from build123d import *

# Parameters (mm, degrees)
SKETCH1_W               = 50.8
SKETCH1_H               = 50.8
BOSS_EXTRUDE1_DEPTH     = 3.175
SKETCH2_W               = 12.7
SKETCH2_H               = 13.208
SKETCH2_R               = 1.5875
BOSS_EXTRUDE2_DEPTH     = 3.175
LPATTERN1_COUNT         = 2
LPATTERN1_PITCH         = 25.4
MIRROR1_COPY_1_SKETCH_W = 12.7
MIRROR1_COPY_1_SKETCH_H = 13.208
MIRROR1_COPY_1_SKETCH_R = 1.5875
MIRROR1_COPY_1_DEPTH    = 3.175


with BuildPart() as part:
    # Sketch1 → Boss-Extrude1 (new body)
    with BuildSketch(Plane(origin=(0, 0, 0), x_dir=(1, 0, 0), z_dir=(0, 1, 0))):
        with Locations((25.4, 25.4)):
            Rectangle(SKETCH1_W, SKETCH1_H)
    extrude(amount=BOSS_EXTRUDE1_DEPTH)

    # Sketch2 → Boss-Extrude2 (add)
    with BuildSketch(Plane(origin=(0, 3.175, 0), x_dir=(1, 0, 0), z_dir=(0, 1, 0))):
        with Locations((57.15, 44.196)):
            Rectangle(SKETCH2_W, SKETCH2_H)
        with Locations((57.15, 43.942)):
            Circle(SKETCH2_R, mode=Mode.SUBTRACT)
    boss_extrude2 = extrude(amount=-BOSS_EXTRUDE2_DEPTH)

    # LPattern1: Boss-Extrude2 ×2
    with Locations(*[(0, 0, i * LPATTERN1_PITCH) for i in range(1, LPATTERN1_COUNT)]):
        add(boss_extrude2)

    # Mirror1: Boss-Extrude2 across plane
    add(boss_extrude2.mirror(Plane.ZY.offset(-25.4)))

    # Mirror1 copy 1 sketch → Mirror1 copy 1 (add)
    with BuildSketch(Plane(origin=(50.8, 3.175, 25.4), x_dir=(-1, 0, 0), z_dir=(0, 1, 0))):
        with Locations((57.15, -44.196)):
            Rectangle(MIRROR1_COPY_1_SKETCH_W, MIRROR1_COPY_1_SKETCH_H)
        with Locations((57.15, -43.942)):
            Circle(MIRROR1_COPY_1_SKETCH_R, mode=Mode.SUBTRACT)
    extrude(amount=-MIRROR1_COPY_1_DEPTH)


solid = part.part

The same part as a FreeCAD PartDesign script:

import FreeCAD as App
import Part
import Sketcher
Q = App.Units.Quantity

doc = App.newDocument("Part")
body = doc.addObject("PartDesign::Body", "Body")

# Sketch on XZ plane
sketch1 = body.newObject("Sketcher::SketchObject", "Sketch")
sketch1.AttachmentSupport = (doc.getObject("XZ_Plane"), [""])
sketch1.MapMode = "FlatFace"
sketch1.addGeometry(Part.LineSegment(App.Vector(0, -51, 0), App.Vector(0, 0, 0)), False)
sketch1.addGeometry(Part.LineSegment(App.Vector(0, 0, 0), App.Vector(51, 0, 0)), False)
sketch1.addGeometry(Part.LineSegment(App.Vector(51, 0, 0), App.Vector(51, -51, 0)), False)
sketch1.addGeometry(Part.LineSegment(App.Vector(51, -51, 0), App.Vector(0, -51, 0)), False)
sketch1.addConstraint(Sketcher.Constraint("Coincident", 0, 2, 1, 1))
sketch1.addConstraint(Sketcher.Constraint("Coincident", 1, 2, 2, 1))
sketch1.addConstraint(Sketcher.Constraint("Coincident", 2, 2, 3, 1))
sketch1.addConstraint(Sketcher.Constraint("Coincident", 3, 2, 0, 1))
sketch1.addConstraint(Sketcher.Constraint("Vertical", 0))
sketch1.addConstraint(Sketcher.Constraint("Horizontal", 1))
sketch1.addConstraint(Sketcher.Constraint("Vertical", 2))
sketch1.addConstraint(Sketcher.Constraint("Horizontal", 3))
sketch1.addConstraint(Sketcher.Constraint("Coincident", 0, 2, -1, 1))
sketch1.addConstraint(Sketcher.Constraint("Equal", 3, 0))
sketch1.addConstraint(Sketcher.Constraint("DistanceX", 1, 1, 1, 2, Q("2 in")))
pad1 = body.newObject("PartDesign::Pad", "Pad")
pad1.Profile = sketch1
pad1.Length = Q("0.125 in")
pad1.Reversed = True

# Sketch on XZ plane
sketch2 = body.newObject("Sketcher::SketchObject", "Sketch001")
sketch2.AttachmentSupport = (doc.getObject("XZ_Plane"), [""])
sketch2.MapMode = "FlatFace"
sketch2.AttachmentOffset = App.Placement(App.Vector(0, 0, -0.125 * 25.4), App.Rotation())
sketch2.addGeometry(Part.LineSegment(App.Vector(50.8, -50.8, 0), App.Vector(50.8, -37.6, 0)), False)
sketch2.addGeometry(Part.LineSegment(App.Vector(50.8, -37.6, 0), App.Vector(63.5, -37.6, 0)), False)
sketch2.addGeometry(Part.LineSegment(App.Vector(63.5, -37.6, 0), App.Vector(63.5, -50.8, 0)), False)
sketch2.addGeometry(Part.LineSegment(App.Vector(63.5, -50.8, 0), App.Vector(50.8, -50.8, 0)), False)
sketch2.addGeometry(Part.Circle(App.Vector(57.1, -43.9, 0), App.Vector(0, 0, 1), 1.6), False)
sketch2.addConstraint(Sketcher.Constraint("Coincident", 0, 2, 1, 1))
sketch2.addConstraint(Sketcher.Constraint("Coincident", 1, 2, 2, 1))
sketch2.addConstraint(Sketcher.Constraint("Coincident", 2, 2, 3, 1))
sketch2.addConstraint(Sketcher.Constraint("Coincident", 3, 2, 0, 1))
sketch2.addConstraint(Sketcher.Constraint("Vertical", 0))
sketch2.addConstraint(Sketcher.Constraint("Horizontal", 1))
sketch2.addConstraint(Sketcher.Constraint("Vertical", 2))
sketch2.addConstraint(Sketcher.Constraint("Horizontal", 3))
sketch2.addConstraint(Sketcher.Constraint("Diameter", 4, Q("0.125 in")))
sketch2.addConstraint(Sketcher.Constraint("DistanceX", 1, 1, 1, 2, Q("0.5 in")))
sketch2.addConstraint(Sketcher.Constraint("DistanceX", -1, 1, 0, 2, Q("2 in")))
sketch2.addConstraint(Sketcher.Constraint("DistanceY", 2, 2, -1, 1, Q("2 in")))
sketch2.addConstraint(Sketcher.Constraint("DistanceY", 0, 1, 0, 2, Q("0.52 in")))
sketch2.addConstraint(Sketcher.Constraint("DistanceX", -1, 1, 4, 3, Q("2.25 in")))
sketch2.addConstraint(Sketcher.Constraint("DistanceY", 4, 3, -1, 1, Q("1.73 in")))
pad2 = body.newObject("PartDesign::Pad", "Pad001")
pad2.Profile = sketch2
pad2.Length = Q("0.125 in")
doc.recompute()

linearpattern = body.newObject("PartDesign::LinearPattern", "LinearPattern")
linearpattern.Originals = [pad2]
linearpattern.Direction = (doc.getObject("Z_Axis"), [""])
linearpattern.Mode = "offset"
linearpattern.Offset = Q("1 in")
linearpattern.Occurrences = 2
body.Tip = linearpattern
doc.recompute()

datumplane = body.newObject("PartDesign::Plane", "DatumPlane")
datumplane.AttachmentSupport = (doc.getObject("YZ_Plane"), [""])
datumplane.MapMode = "FlatFace"
datumplane.AttachmentOffset = App.Placement(App.Vector(0, 0, 1 * 25.4), App.Rotation())
mirrored = body.newObject("PartDesign::Mirrored", "Mirrored")
mirrored.Originals = [pad2]
mirrored.MirrorPlane = (datumplane, [""])
body.Tip = mirrored

# Sketch on XZ plane
sketch3 = body.newObject("Sketcher::SketchObject", "Sketch002")
sketch3.AttachmentSupport = (doc.getObject("XZ_Plane"), [""])
sketch3.MapMode = "FlatFace"
sketch3.AttachmentOffset = App.Placement(App.Vector(0, 0, -0.125 * 25.4), App.Rotation())
sketch3.addGeometry(Part.LineSegment(App.Vector(0, -12.2, 0), App.Vector(0, -25.4, 0)), False)
sketch3.addGeometry(Part.LineSegment(App.Vector(0, -25.4, 0), App.Vector(-12.7, -25.4, 0)), False)
sketch3.addGeometry(Part.LineSegment(App.Vector(-12.7, -25.4, 0), App.Vector(-12.7, -12.2, 0)), False)
sketch3.addGeometry(Part.LineSegment(App.Vector(-12.7, -12.2, 0), App.Vector(0, -12.2, 0)), False)
sketch3.addGeometry(Part.Circle(App.Vector(-6.3, -18.5, 0), App.Vector(0, 0, 1), 1.6), False)
sketch3.addConstraint(Sketcher.Constraint("Coincident", 0, 2, 1, 1))
sketch3.addConstraint(Sketcher.Constraint("Coincident", 1, 2, 2, 1))
sketch3.addConstraint(Sketcher.Constraint("Coincident", 2, 2, 3, 1))
sketch3.addConstraint(Sketcher.Constraint("Coincident", 3, 2, 0, 1))
sketch3.addConstraint(Sketcher.Constraint("Vertical", 0))
sketch3.addConstraint(Sketcher.Constraint("Horizontal", 1))
sketch3.addConstraint(Sketcher.Constraint("Vertical", 2))
sketch3.addConstraint(Sketcher.Constraint("Horizontal", 3))
sketch3.addConstraint(Sketcher.Constraint("PointOnObject", 0, 2, -2))
sketch3.addConstraint(Sketcher.Constraint("Diameter", 4, Q("0.125 in")))
sketch3.addConstraint(Sketcher.Constraint("DistanceX", 1, 2, 1, 1, Q("0.5 in")))
sketch3.addConstraint(Sketcher.Constraint("DistanceY", 0, 2, -1, 1, Q("1 in")))
sketch3.addConstraint(Sketcher.Constraint("DistanceY", 0, 2, 0, 1, Q("0.52 in")))
sketch3.addConstraint(Sketcher.Constraint("DistanceX", 4, 3, -1, 1, Q("0.25 in")))
sketch3.addConstraint(Sketcher.Constraint("DistanceY", 4, 3, -1, 1, Q("0.73 in")))
pad3 = body.newObject("PartDesign::Pad", "Pad002")
pad3.Profile = sketch3
pad3.Length = Q("0.125 in")

doc.recompute()
